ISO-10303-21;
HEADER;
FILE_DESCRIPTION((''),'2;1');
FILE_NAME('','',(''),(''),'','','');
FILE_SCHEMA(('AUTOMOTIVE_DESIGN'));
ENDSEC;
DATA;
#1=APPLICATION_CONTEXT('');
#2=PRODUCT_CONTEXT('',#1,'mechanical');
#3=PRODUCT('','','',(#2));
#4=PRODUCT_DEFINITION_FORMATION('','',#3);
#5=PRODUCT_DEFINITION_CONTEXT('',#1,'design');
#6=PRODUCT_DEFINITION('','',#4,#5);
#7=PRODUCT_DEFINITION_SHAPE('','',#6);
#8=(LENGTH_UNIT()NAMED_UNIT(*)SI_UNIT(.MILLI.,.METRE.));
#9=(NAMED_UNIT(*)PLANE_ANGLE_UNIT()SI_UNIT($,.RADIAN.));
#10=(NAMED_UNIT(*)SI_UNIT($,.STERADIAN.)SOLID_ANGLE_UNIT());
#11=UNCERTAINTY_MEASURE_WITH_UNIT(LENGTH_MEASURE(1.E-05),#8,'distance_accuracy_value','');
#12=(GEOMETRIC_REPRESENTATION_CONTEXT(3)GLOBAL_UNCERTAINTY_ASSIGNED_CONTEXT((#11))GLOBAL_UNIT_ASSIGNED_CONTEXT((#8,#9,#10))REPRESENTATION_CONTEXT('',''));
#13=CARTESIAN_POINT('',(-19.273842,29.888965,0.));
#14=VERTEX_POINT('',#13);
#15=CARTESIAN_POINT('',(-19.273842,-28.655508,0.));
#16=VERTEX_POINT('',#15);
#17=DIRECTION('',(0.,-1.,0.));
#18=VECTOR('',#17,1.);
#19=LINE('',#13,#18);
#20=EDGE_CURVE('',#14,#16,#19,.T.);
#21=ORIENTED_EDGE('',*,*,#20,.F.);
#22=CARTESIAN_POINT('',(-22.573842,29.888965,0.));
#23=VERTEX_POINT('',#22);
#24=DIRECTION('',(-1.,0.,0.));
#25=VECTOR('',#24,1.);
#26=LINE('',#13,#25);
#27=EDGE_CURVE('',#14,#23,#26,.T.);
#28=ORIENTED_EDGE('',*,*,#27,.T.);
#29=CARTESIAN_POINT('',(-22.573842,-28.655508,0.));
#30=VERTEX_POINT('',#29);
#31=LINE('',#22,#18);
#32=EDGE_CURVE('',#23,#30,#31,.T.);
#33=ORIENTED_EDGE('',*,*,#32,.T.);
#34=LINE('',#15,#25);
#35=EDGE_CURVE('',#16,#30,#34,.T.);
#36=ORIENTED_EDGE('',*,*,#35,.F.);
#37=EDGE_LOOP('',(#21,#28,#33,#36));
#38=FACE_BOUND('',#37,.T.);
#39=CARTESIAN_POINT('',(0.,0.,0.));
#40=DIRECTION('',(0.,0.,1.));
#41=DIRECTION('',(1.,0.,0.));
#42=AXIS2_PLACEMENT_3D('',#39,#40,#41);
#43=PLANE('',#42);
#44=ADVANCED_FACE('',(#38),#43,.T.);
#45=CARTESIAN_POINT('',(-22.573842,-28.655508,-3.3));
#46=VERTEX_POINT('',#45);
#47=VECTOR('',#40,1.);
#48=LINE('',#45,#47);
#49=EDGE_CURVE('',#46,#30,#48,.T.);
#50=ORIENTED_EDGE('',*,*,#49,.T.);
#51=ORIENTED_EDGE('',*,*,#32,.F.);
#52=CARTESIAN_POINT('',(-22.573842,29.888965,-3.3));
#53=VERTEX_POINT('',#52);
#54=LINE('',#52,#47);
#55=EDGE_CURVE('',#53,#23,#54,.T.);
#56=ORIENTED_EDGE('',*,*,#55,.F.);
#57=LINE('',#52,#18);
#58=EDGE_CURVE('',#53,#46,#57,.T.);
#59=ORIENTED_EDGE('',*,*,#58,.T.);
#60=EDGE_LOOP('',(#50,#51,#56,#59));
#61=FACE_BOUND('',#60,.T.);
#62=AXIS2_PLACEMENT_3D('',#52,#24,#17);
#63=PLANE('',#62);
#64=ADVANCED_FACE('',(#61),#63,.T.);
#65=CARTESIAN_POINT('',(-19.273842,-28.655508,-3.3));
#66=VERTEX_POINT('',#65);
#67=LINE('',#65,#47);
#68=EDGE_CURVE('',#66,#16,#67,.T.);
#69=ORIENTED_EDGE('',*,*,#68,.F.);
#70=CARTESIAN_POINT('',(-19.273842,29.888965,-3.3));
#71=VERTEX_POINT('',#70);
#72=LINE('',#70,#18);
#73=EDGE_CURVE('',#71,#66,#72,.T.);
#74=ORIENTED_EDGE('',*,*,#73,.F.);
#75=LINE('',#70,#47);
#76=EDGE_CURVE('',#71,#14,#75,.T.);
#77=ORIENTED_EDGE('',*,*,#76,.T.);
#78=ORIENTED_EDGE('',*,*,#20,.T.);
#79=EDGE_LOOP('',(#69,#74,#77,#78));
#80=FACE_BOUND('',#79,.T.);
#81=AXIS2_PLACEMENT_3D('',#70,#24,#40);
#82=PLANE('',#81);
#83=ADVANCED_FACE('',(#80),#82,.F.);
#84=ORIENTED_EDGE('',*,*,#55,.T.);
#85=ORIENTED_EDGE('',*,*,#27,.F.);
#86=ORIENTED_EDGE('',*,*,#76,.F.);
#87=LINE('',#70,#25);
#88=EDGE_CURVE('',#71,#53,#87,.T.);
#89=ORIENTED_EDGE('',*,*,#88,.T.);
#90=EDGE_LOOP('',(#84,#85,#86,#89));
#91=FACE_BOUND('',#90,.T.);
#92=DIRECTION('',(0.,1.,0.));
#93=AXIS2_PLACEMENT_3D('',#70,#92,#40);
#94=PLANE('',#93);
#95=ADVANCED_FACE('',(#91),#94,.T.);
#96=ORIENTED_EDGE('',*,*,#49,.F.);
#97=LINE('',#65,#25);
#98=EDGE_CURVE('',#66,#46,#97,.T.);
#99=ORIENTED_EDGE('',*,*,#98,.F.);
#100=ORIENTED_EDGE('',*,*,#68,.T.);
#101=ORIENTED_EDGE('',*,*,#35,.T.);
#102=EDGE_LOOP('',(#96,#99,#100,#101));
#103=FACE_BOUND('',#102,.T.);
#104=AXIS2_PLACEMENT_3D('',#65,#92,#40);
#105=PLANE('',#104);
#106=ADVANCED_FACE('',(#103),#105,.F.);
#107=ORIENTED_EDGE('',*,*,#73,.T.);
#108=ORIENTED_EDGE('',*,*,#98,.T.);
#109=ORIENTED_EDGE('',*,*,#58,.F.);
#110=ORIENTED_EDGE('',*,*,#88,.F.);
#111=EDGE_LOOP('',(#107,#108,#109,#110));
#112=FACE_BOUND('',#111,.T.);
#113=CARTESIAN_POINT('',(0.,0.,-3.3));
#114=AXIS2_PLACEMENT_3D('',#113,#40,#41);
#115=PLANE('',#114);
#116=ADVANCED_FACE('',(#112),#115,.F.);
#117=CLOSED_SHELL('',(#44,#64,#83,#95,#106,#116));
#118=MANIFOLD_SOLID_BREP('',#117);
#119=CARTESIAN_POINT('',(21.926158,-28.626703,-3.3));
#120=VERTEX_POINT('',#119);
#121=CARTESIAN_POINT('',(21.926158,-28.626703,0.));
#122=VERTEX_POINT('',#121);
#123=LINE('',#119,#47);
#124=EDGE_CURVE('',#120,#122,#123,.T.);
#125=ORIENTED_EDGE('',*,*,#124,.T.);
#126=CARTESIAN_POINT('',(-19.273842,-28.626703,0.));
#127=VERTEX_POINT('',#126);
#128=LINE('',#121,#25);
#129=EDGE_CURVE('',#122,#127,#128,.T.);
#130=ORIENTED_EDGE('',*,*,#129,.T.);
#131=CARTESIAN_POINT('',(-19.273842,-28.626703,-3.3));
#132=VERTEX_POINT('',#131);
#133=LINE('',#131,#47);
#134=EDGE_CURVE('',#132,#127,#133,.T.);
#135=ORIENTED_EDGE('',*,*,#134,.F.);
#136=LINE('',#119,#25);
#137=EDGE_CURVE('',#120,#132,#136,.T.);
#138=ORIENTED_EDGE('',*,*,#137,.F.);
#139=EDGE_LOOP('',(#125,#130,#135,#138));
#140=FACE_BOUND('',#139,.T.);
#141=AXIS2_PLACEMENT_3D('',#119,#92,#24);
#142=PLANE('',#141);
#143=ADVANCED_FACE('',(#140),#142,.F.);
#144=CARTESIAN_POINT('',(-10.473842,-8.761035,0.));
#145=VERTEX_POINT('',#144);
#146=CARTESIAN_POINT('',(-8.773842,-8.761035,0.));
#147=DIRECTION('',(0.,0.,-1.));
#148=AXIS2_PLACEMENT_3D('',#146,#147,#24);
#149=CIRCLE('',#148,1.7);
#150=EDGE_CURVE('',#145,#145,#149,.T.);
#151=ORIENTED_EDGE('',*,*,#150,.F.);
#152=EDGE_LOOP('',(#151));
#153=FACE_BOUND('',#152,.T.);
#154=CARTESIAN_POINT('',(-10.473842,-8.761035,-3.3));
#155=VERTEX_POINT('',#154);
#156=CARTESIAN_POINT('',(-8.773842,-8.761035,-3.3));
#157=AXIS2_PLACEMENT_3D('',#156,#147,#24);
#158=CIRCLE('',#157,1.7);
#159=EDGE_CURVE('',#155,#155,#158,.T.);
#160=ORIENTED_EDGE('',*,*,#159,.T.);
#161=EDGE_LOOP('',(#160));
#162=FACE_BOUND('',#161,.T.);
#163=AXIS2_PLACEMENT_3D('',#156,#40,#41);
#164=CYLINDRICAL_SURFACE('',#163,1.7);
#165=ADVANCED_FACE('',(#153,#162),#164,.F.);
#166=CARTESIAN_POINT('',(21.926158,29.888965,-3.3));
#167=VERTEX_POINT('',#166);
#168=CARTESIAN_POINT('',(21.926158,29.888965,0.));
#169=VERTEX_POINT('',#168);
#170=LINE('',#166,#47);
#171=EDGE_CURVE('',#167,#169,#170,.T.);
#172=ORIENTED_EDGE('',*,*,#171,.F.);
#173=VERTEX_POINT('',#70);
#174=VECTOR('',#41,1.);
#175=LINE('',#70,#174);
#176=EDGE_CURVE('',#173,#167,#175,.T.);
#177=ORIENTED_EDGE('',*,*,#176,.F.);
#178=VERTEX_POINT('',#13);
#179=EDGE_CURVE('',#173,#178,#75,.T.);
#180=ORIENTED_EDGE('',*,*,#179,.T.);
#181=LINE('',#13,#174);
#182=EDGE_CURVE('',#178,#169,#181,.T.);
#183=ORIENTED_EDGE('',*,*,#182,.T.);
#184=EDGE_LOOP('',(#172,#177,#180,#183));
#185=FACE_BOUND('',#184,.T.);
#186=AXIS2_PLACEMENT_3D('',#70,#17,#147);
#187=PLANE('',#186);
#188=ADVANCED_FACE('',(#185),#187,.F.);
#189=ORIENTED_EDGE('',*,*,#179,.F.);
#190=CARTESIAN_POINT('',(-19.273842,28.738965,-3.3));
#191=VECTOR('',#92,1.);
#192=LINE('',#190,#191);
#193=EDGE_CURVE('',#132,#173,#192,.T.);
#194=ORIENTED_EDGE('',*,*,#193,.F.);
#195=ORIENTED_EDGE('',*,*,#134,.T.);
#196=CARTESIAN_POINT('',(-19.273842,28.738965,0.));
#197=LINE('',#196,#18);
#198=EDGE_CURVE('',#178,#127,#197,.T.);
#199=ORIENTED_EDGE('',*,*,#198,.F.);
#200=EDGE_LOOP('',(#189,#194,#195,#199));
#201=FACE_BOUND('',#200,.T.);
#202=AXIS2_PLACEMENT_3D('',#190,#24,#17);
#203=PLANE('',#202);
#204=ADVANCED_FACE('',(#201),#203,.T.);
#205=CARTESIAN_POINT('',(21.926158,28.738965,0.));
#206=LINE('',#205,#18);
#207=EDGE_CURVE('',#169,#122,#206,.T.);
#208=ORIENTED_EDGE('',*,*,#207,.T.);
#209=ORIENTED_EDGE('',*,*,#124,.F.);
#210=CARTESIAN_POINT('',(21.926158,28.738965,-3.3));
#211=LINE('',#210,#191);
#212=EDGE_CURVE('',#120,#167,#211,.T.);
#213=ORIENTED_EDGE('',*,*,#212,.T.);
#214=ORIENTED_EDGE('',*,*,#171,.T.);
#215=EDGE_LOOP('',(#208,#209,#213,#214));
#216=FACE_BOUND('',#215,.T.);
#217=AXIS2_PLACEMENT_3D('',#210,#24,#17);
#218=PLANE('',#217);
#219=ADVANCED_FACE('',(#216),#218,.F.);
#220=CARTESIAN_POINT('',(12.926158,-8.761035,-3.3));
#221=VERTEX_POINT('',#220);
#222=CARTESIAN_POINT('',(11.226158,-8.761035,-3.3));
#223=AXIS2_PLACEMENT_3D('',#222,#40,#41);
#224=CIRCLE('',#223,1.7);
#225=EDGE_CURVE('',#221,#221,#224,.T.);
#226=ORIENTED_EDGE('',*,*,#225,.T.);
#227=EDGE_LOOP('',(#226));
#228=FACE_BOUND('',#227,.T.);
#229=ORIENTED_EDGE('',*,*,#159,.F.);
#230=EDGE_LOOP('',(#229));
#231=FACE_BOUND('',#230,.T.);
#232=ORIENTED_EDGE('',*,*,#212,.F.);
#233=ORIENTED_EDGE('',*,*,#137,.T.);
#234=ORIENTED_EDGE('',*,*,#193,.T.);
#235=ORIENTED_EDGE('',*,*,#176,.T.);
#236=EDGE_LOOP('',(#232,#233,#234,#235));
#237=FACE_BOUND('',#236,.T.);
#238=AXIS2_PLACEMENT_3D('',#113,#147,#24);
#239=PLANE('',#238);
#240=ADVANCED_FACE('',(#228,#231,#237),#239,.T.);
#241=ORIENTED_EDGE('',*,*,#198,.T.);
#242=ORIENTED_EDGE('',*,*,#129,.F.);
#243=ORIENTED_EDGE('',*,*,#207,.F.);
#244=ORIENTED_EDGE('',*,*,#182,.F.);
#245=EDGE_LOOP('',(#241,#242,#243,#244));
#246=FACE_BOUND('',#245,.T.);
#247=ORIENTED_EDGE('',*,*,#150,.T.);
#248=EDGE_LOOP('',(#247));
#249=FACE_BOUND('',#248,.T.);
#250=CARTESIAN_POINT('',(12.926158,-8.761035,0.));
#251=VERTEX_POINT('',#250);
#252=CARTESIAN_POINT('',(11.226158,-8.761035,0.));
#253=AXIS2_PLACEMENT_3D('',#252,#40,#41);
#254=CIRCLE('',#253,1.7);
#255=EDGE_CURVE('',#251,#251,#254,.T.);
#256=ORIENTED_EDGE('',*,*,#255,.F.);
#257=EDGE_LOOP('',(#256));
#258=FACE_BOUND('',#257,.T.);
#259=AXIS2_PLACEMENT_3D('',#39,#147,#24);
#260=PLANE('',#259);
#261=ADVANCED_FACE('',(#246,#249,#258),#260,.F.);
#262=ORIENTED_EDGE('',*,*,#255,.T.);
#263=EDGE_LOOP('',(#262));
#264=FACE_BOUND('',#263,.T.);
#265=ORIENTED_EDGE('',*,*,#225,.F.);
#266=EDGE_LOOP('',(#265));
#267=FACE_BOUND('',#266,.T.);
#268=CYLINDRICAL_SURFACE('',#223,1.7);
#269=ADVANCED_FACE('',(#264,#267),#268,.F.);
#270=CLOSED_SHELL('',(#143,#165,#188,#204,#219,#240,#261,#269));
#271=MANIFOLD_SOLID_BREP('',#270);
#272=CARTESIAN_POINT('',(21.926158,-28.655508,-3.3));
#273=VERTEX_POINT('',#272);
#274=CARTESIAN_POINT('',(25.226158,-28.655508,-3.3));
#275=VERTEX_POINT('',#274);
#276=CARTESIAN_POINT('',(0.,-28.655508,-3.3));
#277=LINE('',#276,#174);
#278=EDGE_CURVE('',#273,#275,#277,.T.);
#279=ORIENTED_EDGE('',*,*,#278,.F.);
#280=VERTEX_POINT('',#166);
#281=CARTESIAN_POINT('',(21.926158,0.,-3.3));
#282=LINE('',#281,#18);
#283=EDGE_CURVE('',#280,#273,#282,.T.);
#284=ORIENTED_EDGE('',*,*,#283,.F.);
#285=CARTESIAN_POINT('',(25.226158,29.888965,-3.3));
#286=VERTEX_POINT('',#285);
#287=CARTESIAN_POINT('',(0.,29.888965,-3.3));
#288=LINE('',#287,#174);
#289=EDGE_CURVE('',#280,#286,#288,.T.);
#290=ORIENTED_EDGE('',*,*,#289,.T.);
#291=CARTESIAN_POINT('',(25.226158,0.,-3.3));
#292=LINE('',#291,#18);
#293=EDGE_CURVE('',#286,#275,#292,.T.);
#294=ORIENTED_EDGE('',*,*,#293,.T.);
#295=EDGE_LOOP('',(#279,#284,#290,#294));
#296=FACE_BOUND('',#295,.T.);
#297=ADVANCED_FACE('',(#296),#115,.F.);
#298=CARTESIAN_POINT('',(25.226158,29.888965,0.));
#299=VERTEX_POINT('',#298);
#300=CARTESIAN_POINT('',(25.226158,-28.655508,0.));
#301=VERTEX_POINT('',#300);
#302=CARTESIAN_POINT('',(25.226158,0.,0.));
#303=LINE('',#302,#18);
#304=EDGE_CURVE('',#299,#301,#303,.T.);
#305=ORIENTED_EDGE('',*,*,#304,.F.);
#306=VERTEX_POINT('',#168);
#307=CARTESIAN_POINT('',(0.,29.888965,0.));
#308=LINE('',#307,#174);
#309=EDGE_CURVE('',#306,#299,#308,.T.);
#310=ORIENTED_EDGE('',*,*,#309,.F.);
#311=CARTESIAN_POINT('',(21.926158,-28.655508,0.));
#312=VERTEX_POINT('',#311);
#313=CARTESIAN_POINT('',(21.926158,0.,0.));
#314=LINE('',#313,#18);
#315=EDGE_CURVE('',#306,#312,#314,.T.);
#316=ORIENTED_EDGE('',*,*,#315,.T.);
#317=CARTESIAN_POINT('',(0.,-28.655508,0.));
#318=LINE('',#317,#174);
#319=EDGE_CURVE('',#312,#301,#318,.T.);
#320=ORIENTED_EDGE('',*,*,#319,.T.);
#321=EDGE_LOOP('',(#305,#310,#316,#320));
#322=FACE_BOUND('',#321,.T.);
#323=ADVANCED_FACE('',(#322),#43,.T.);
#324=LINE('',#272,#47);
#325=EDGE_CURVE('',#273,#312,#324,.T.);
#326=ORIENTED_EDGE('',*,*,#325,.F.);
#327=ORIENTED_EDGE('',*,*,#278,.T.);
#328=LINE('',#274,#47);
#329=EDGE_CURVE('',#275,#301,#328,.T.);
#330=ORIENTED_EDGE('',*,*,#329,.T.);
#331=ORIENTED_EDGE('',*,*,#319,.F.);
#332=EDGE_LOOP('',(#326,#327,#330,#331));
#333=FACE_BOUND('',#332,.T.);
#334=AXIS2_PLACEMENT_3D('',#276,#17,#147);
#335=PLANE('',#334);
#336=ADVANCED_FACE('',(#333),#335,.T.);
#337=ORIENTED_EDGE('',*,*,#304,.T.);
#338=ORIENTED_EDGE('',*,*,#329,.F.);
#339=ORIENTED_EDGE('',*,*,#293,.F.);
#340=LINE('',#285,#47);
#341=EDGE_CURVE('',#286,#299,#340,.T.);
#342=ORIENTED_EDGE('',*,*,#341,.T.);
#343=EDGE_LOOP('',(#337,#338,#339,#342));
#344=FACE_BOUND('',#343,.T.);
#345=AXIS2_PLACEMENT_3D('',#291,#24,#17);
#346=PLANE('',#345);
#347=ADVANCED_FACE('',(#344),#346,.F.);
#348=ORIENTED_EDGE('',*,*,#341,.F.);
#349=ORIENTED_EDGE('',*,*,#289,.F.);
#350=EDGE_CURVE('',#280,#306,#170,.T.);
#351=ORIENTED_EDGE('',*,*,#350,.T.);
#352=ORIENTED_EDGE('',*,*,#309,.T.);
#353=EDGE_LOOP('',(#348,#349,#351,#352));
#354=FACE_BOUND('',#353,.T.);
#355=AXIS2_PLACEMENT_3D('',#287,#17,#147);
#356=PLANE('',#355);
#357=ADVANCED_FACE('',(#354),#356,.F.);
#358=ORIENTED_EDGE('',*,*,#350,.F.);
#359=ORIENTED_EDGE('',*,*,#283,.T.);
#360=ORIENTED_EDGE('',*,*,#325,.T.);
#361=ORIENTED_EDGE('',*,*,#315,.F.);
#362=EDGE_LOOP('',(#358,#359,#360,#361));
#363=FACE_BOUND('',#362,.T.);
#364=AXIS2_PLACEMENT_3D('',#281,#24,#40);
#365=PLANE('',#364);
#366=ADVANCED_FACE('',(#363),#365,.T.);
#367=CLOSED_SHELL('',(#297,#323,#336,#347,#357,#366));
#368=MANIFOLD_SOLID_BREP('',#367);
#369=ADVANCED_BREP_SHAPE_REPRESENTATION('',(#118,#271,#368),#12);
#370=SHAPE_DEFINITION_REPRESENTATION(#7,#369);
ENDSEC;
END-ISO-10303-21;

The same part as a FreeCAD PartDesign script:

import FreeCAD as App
import Part
import Sketcher

V = App.Vector
Q = App.Units.Quantity

doc = App.newDocument("Part")
body = doc.addObject("PartDesign::Body", "Body")

# Sketch on XY plane
sketch1 = body.newObject("Sketcher::SketchObject", "Sketch")
sketch1.AttachmentSupport = (doc.getObject("XY_Plane"), [""])
sketch1.MapMode = "FlatFace"
sketch1.addGeometry([
    Part.LineSegment(V(21.926158, -28.626703, 0), V(21.926158, 29.888965, 0)),  # 0
    Part.LineSegment(V(21.926158, 29.888965, 0), V(-19.273842, 29.888965, 0)),  # 1
    Part.LineSegment(V(-19.273842, 29.888965, 0), V(-19.273842, -28.626703, 0)),  # 2
    Part.LineSegment(V(-19.273842, -28.626703, 0), V(21.926158, -28.626703, 0)),  # 3
    Part.Circle(V(11.226158, -8.761035, 0), V(0, 0, 1), 1.7),  # 4
    Part.Circle(V(-8.773842, -8.761035, 0), V(0, 0, 1), 1.7),  # 5
], False)
sketch1.addConstraint([
    Sketcher.Constraint("Coincident", 0, 2, 1, 1),
    Sketcher.Constraint("Coincident", 1, 2, 2, 1),
    Sketcher.Constraint("Coincident", 2, 2, 3, 1),
    Sketcher.Constraint("Coincident", 3, 2, 0, 1),
    Sketcher.Constraint("Vertical", 0),
    Sketcher.Constraint("Horizontal", 1),
    Sketcher.Constraint("Vertical", 2),
    Sketcher.Constraint("Horizontal", 3),
    Sketcher.Constraint("Equal", 4, 5),
    Sketcher.Constraint("Horizontal", 4, 3, 5, 3),
    Sketcher.Constraint("Diameter", 4, Q("3.4 mm")),
    Sketcher.Constraint("DistanceX", 1, 2, 1, 1, Q("41.2 mm")),
    Sketcher.Constraint("DistanceX", 5, 3, 4, 3, Q("20 mm")),
    Sketcher.Constraint("DistanceX", 4, 3, 0, 2, Q("10.7 mm")),
    Sketcher.Constraint("DistanceY", 4, 3, 0, 2, Q("38.65 mm")),
    Sketcher.Constraint("DistanceY", 0, 1, 0, 2, Q("58.515668 mm")),
    Sketcher.Constraint("DistanceX", -1, 1, 4, 3, Q("11.226158 mm")),
    Sketcher.Constraint("DistanceY", 4, 3, -1, 1, Q("8.761035 mm")),
])
pad1 = body.newObject("PartDesign::Pad", "Pad")
pad1.Profile = sketch1
pad1.Length = 3.3
pad1.Reversed = True
body2 = doc.addObject("PartDesign::Body", "Body001")

# Sketch on XY plane
sketch2 = body2.newObject("Sketcher::SketchObject", "Sketch001")
sketch2.AttachmentSupport = (doc.getObject("XY_Plane001"), [""])
sketch2.MapMode = "FlatFace"
sketch2.addGeometry([
    Part.LineSegment(V(21.926158, 29.888965, 0), V(21.926158, -28.655508, 0)),
    Part.LineSegment(V(21.926158, -28.655508, 0), V(25.226158, -28.655508, 0)),
    Part.LineSegment(V(25.226158, -28.655508, 0), V(25.226158, 29.888965, 0)),
    Part.LineSegment(V(25.226158, 29.888965, 0), V(21.926158, 29.888965, 0)),
], False)
sketch2.addConstraint([
    Sketcher.Constraint("Coincident", 0, 2, 1, 1),
    Sketcher.Constraint("Coincident", 1, 2, 2, 1),
    Sketcher.Constraint("Coincident", 2, 2, 3, 1),
    Sketcher.Constraint("Coincident", 3, 2, 0, 1),
    Sketcher.Constraint("Vertical", 0),
    Sketcher.Constraint("Horizontal", 1),
    Sketcher.Constraint("Vertical", 2),
    Sketcher.Constraint("Horizontal", 3),
    Sketcher.Constraint("DistanceX", 1, 1, 1, 2, Q("3.3 mm")),
    Sketcher.Constraint("DistanceY", 0, 2, 0, 1, Q("58.544472 mm")),
    Sketcher.Constraint("DistanceX", -1, 1, 0, 2, Q("21.926158 mm")),
    Sketcher.Constraint("DistanceY", 0, 2, -1, 1, Q("28.655508 mm")),
])
pad2 = body2.newObject("PartDesign::Pad", "Pad001")
pad2.Profile = sketch2
pad2.Length = 3.3
pad2.Reversed = True
body3 = doc.addObject("PartDesign::Body", "Body002")

# Sketch on XY plane
sketch3 = body3.newObject("Sketcher::SketchObject", "Sketch002")
sketch3.AttachmentSupport = (doc.getObject("XY_Plane002"), [""])
sketch3.MapMode = "FlatFace"
sketch3.addGeometry([
    Part.LineSegment(V(-22.573842, 29.888965, 0), V(-22.573842, -28.655508, 0)),
    Part.LineSegment(V(-22.573842, -28.655508, 0), V(-19.273842, -28.655508, 0)),
    Part.LineSegment(V(-19.273842, -28.655508, 0), V(-19.273842, 29.888965, 0)),
    Part.LineSegment(V(-19.273842, 29.888965, 0), V(-22.573842, 29.888965, 0)),
], False)
sketch3.addConstraint([
    Sketcher.Constraint("Coincident", 0, 2, 1, 1),
    Sketcher.Constraint("Coincident", 1, 2, 2, 1),
    Sketcher.Constraint("Coincident", 2, 2, 3, 1),
    Sketcher.Constraint("Coincident", 3, 2, 0, 1),
    Sketcher.Constraint("Vertical", 0),
    Sketcher.Constraint("Horizontal", 1),
    Sketcher.Constraint("Vertical", 2),
    Sketcher.Constraint("Horizontal", 3),
    Sketcher.Constraint("DistanceX", 1, 1, 1, 2, Q("3.3 mm")),
    Sketcher.Constraint("DistanceY", 0, 2, 0, 1, Q("58.544472 mm")),
    Sketcher.Constraint("DistanceX", 0, 2, -1, 1, Q("22.573842 mm")),
    Sketcher.Constraint("DistanceY", 0, 2, -1, 1, Q("28.655508 mm")),
])
pad3 = body3.newObject("PartDesign::Pad", "Pad002")
pad3.Profile = sketch3
pad3.Length = 3.3
pad3.Reversed = True

doc.recompute()
